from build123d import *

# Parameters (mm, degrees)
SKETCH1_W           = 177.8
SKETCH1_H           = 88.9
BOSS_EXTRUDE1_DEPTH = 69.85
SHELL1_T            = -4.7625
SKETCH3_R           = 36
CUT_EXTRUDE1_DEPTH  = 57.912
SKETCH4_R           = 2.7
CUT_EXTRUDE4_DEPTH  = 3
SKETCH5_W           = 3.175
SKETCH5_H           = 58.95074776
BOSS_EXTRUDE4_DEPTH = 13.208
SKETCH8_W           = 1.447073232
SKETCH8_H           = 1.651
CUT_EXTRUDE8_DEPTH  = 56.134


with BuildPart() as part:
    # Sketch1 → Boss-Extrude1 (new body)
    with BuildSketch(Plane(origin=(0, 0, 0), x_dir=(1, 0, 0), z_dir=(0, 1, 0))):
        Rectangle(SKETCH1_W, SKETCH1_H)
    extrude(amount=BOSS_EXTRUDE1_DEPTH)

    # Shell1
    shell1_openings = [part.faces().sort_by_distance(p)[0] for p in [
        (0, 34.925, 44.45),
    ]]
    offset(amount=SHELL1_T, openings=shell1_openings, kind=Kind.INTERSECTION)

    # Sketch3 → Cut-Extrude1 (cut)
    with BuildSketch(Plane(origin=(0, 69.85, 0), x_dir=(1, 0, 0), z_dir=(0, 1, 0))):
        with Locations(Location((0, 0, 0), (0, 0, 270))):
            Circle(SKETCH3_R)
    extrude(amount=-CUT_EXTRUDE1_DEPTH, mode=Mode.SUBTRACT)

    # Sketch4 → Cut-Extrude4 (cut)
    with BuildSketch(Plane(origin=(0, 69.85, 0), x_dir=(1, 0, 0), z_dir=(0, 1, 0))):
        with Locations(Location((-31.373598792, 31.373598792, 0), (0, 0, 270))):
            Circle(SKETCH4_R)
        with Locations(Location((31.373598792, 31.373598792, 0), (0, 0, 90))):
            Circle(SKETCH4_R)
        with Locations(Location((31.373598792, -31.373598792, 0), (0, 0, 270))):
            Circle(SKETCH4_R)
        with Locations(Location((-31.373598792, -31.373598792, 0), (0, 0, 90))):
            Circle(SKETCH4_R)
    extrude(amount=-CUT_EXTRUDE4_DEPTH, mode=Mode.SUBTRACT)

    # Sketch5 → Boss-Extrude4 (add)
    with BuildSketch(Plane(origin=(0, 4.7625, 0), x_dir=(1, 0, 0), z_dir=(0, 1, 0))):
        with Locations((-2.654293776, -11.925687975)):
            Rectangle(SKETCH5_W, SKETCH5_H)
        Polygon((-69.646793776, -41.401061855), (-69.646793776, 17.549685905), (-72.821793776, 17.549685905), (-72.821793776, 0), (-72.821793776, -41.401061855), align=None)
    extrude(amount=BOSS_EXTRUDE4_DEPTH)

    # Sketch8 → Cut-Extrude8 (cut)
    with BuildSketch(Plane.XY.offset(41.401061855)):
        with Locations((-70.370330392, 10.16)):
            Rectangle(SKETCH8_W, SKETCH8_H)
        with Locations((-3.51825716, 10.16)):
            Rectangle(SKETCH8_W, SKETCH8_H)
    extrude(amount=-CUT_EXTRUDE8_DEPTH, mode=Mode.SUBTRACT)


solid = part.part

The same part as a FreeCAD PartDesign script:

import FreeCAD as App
import Part
import Sketcher
from FreeCAD import Vector
Q = App.Units.Quantity


def faces_at(feature, points):
    """Names of the faces that lie closest to the given points."""
    faces = feature.Shape.Faces
    near = lambda p: min(range(len(faces)), key=lambda i: faces[i].distToShape(Part.Vertex(*p))[0])
    return sorted({f"Face{near(p) + 1}" for p in points})


def add_polygon(sketch, points):
    """Adds a closed chain of lines whose ends are joined by coincident constraints."""
    first, n = sketch.GeometryCount, len(points)
    for a, b in zip(points, points[1:] + points[:1]):
        sketch.addGeometry(Part.LineSegment(App.Vector(*a, 0), App.Vector(*b, 0)), False)
    for i in range(n):
        sketch.addConstraint(Sketcher.Constraint("Coincident", first + i, 2, first + (i + 1) % n, 1))

doc = App.newDocument("Part")
body = doc.addObject("PartDesign::Body", "Body")

# Sketch on XZ plane
sketch1 = body.newObject("Sketcher::SketchObject", "Sketch")
sketch1.AttachmentSupport = (doc.getObject("XZ_Plane"), [""])
sketch1.MapMode = "FlatFace"
add_polygon(sketch1, [(-89, -44), (-89, 44), (89, 44), (89, -44)])  # lines 0-3
sketch1.addConstraint(Sketcher.Constraint("Vertical", 0))
sketch1.addConstraint(Sketcher.Constraint("Horizontal", 1))
sketch1.addConstraint(Sketcher.Constraint("Vertical", 2))
sketch1.addConstraint(Sketcher.Constraint("Horizontal", 3))
sketch1.addConstraint(Sketcher.Constraint("Symmetric", 0, 2, 2, 2, -1, 1))
sketch1.addConstraint(Sketcher.Constraint("DistanceX", 1, 1, 1, 2, Q("7 in")))
sketch1.addConstraint(Sketcher.Constraint("DistanceY", 0, 1, 0, 2, Q("3.5 in")))
pad1 = body.newObject("PartDesign::Pad", "Pad")
pad1.Profile = sketch1
pad1.Length = Q("2.75 in")
pad1.Reversed = True
doc.recompute()

thickness = body.newObject("PartDesign::Thickness", "Thickness")
thickness.Base = (pad1, faces_at(pad1, [(0, 34.925, 44.45)]))
thickness.Value = Q("0.1875 in")
thickness.Reversed = True
thickness.Join = "Intersection"

# Sketch on XZ plane
sketch2 = body.newObject("Sketcher::SketchObject", "Sketch001")
sketch2.AttachmentSupport = (doc.getObject("XZ_Plane"), [""])
sketch2.MapMode = "FlatFace"
sketch2.AttachmentOffset = App.Placement(Vector(0, 0, -2.75 * 25.4), App.Rotation())
sketch2.addGeometry(Part.Circle(Vector(0, 0, 0), Vector(0, 0, 1), 36), False)
sketch2.addConstraint(Sketcher.Constraint("Coincident", 0, 3, -1, 1))
sketch2.addConstraint(Sketcher.Constraint("Diameter", 0, 72.0))
pocket1 = body.newObject("PartDesign::Pocket", "Pocket")
pocket1.Profile = sketch2
pocket1.Length = Q("2.28 in")
pocket1.Reversed = True

# Sketch on XZ plane
sketch3 = body.newObject("Sketcher::SketchObject", "Sketch002")
sketch3.AttachmentSupport = (doc.getObject("XZ_Plane"), [""])
sketch3.MapMode = "FlatFace"
sketch3.AttachmentOffset = App.Placement(Vector(0, 0, -2.75 * 25.4), App.Rotation())
sketch3.addGeometry(Part.Circle(Vector(-31.4, -31.4, 0), Vector(0, 0, 1), 2.7), False)
sketch3.addGeometry(Part.Circle(Vector(31.4, -31.4, 0), Vector(0, 0, 1), 2.7), False)
sketch3.addGeometry(Part.Circle(Vector(31.4, 31.4, 0), Vector(0, 0, 1), 2.7), False)
sketch3.addGeometry(Part.Circle(Vector(-31.4, 31.4, 0), Vector(0, 0, 1), 2.7), False)
sketch3.addConstraint(Sketcher.Constraint("Equal", 0, 1))
sketch3.addConstraint(Sketcher.Constraint("Equal", 1, 2))
sketch3.addConstraint(Sketcher.Constraint("Equal", 2, 3))
sketch3.addConstraint(Sketcher.Constraint("Symmetric", 0, 3, 2, 3, -1, 1))
sketch3.addConstraint(Sketcher.Constraint("Symmetric", 1, 3, 3, 3, -1, 1))
sketch3.addConstraint(Sketcher.Constraint("Symmetric", 0, 3, 1, 3, -2))
sketch3.addConstraint(Sketcher.Constraint("Diameter", 0, 5.4))
sketch3.addConstraint(Sketcher.Constraint("DistanceX", 0, 3, -1, 1, 31.373599))
sketch3.addConstraint(Sketcher.Constraint("DistanceY", 0, 3, -1, 1, 31.373599))
pocket2 = body.newObject("PartDesign::Pocket", "Pocket001")
pocket2.Profile = sketch3
pocket2.Length = 3
pocket2.Reversed = True

# Sketch on XZ plane
sketch4 = body.newObject("Sketcher::SketchObject", "Sketch003")
sketch4.AttachmentSupport = (doc.getObject("XZ_Plane"), [""])
sketch4.MapMode = "FlatFace"
sketch4.AttachmentOffset = App.Placement(Vector(0, 0, -0.1875 * 25.4), App.Rotation())
add_polygon(sketch4, [(-4.2, -17.5), (-4.2, 41.4), (-1.1, 41.4), (-1.1, -17.5)])  # lines 0-3
add_polygon(sketch4, [(-69.6, 41.4), (-69.6, -17.5), (-72.8, -17.5), (-72.8, 41.4)])  # lines 4-7
sketch4.addConstraint(Sketcher.Constraint("Vertical", 0))
sketch4.addConstraint(Sketcher.Constraint("Horizontal", 1))
sketch4.addConstraint(Sketcher.Constraint("Vertical", 2))
sketch4.addConstraint(Sketcher.Constraint("Horizontal", 3))
sketch4.addConstraint(Sketcher.Constraint("Vertical", 4))
sketch4.addConstraint(Sketcher.Constraint("Horizontal", 5))
sketch4.addConstraint(Sketcher.Constraint("Vertical", 6))
sketch4.addConstraint(Sketcher.Constraint("Horizontal", 7))
sketch4.addConstraint(Sketcher.Constraint("Horizontal", 3, 2, 4, 2))
sketch4.addConstraint(Sketcher.Constraint("Horizontal", 1, 2, 6, 2))
sketch4.addConstraint(Sketcher.Constraint("Equal", 3, 5))
sketch4.addConstraint(Sketcher.Constraint("DistanceX", 4, 2, 2, 2, Q("2.7 in")))
sketch4.addConstraint(Sketcher.Constraint("DistanceX", 1, 1, 1, 2, Q("0.125 in")))
sketch4.addConstraint(Sketcher.Constraint("DistanceY", 0, 1, 0, 2, 58.950748))
sketch4.addConstraint(Sketcher.Constraint("DistanceY", -1, 1, 0, 2, 41.401062))
sketch4.addConstraint(Sketcher.Constraint("DistanceX", 0, 2, -1, 1, 4.241794))
pad2 = body.newObject("PartDesign::Pad", "Pad001")
pad2.Profile = sketch4
pad2.Length = Q("0.52 in")
pad2.Reversed = True

# Sketch on XY plane
sketch5 = body.newObject("Sketcher::SketchObject", "Sketch004")
sketch5.AttachmentSupport = (doc.getObject("XY_Plane"), [""])
sketch5.MapMode = "FlatFace"
sketch5.AttachmentOffset = App.Placement(Vector(0, 0, 41.401062), App.Rotation())
add_polygon(sketch5, [(-71.1, 11), (-71.1, 9.3), (-69.6, 9.3), (-69.6, 11)])  # lines 0-3
add_polygon(sketch5, [(-4.2, 11), (-4.2, 9.3), (-2.8, 9.3), (-2.8, 11)])  # lines 4-7
sketch5.addConstraint(Sketcher.Constraint("Vertical", 0))
sketch5.addConstraint(Sketcher.Constraint("Horizontal", 1))
sketch5.addConstraint(Sketcher.Constraint("Vertical", 2))
sketch5.addConstraint(Sketcher.Constraint("Horizontal", 3))
sketch5.addConstraint(Sketcher.Constraint("Vertical", 4))
sketch5.addConstraint(Sketcher.Constraint("Horizontal", 5))
sketch5.addConstraint(Sketcher.Constraint("Vertical", 6))
sketch5.addConstraint(Sketcher.Constraint("Horizontal", 7))
sketch5.addConstraint(Sketcher.Constraint("Horizontal", 1, 2, 4, 2))
sketch5.addConstraint(Sketcher.Constraint("Horizontal", 3, 2, 6, 2))
sketch5.addConstraint(Sketcher.Constraint("Equal", 3, 5))
sketch5.addConstraint(Sketcher.Constraint("DistanceY", 0, 2, 0, 1, Q("0.065 in")))
sketch5.addConstraint(Sketcher.Constraint("DistanceX", 1, 2, 4, 2, Q("2.575 in")))
sketch5.addConstraint(Sketcher.Constraint("DistanceY", -1, 1, 0, 2, Q("0.3675 in")))
sketch5.addConstraint(Sketcher.Constraint("DistanceX", 1, 1, 1, 2, 1.447073))
sketch5.addConstraint(Sketcher.Constraint("DistanceX", 5, 2, -1, 1, 2.794721))
pocket3 = body.newObject("PartDesign::Pocket", "Pocket002")
pocket3.Profile = sketch5
pocket3.Length = Q("2.21 in")

doc.recompute()
